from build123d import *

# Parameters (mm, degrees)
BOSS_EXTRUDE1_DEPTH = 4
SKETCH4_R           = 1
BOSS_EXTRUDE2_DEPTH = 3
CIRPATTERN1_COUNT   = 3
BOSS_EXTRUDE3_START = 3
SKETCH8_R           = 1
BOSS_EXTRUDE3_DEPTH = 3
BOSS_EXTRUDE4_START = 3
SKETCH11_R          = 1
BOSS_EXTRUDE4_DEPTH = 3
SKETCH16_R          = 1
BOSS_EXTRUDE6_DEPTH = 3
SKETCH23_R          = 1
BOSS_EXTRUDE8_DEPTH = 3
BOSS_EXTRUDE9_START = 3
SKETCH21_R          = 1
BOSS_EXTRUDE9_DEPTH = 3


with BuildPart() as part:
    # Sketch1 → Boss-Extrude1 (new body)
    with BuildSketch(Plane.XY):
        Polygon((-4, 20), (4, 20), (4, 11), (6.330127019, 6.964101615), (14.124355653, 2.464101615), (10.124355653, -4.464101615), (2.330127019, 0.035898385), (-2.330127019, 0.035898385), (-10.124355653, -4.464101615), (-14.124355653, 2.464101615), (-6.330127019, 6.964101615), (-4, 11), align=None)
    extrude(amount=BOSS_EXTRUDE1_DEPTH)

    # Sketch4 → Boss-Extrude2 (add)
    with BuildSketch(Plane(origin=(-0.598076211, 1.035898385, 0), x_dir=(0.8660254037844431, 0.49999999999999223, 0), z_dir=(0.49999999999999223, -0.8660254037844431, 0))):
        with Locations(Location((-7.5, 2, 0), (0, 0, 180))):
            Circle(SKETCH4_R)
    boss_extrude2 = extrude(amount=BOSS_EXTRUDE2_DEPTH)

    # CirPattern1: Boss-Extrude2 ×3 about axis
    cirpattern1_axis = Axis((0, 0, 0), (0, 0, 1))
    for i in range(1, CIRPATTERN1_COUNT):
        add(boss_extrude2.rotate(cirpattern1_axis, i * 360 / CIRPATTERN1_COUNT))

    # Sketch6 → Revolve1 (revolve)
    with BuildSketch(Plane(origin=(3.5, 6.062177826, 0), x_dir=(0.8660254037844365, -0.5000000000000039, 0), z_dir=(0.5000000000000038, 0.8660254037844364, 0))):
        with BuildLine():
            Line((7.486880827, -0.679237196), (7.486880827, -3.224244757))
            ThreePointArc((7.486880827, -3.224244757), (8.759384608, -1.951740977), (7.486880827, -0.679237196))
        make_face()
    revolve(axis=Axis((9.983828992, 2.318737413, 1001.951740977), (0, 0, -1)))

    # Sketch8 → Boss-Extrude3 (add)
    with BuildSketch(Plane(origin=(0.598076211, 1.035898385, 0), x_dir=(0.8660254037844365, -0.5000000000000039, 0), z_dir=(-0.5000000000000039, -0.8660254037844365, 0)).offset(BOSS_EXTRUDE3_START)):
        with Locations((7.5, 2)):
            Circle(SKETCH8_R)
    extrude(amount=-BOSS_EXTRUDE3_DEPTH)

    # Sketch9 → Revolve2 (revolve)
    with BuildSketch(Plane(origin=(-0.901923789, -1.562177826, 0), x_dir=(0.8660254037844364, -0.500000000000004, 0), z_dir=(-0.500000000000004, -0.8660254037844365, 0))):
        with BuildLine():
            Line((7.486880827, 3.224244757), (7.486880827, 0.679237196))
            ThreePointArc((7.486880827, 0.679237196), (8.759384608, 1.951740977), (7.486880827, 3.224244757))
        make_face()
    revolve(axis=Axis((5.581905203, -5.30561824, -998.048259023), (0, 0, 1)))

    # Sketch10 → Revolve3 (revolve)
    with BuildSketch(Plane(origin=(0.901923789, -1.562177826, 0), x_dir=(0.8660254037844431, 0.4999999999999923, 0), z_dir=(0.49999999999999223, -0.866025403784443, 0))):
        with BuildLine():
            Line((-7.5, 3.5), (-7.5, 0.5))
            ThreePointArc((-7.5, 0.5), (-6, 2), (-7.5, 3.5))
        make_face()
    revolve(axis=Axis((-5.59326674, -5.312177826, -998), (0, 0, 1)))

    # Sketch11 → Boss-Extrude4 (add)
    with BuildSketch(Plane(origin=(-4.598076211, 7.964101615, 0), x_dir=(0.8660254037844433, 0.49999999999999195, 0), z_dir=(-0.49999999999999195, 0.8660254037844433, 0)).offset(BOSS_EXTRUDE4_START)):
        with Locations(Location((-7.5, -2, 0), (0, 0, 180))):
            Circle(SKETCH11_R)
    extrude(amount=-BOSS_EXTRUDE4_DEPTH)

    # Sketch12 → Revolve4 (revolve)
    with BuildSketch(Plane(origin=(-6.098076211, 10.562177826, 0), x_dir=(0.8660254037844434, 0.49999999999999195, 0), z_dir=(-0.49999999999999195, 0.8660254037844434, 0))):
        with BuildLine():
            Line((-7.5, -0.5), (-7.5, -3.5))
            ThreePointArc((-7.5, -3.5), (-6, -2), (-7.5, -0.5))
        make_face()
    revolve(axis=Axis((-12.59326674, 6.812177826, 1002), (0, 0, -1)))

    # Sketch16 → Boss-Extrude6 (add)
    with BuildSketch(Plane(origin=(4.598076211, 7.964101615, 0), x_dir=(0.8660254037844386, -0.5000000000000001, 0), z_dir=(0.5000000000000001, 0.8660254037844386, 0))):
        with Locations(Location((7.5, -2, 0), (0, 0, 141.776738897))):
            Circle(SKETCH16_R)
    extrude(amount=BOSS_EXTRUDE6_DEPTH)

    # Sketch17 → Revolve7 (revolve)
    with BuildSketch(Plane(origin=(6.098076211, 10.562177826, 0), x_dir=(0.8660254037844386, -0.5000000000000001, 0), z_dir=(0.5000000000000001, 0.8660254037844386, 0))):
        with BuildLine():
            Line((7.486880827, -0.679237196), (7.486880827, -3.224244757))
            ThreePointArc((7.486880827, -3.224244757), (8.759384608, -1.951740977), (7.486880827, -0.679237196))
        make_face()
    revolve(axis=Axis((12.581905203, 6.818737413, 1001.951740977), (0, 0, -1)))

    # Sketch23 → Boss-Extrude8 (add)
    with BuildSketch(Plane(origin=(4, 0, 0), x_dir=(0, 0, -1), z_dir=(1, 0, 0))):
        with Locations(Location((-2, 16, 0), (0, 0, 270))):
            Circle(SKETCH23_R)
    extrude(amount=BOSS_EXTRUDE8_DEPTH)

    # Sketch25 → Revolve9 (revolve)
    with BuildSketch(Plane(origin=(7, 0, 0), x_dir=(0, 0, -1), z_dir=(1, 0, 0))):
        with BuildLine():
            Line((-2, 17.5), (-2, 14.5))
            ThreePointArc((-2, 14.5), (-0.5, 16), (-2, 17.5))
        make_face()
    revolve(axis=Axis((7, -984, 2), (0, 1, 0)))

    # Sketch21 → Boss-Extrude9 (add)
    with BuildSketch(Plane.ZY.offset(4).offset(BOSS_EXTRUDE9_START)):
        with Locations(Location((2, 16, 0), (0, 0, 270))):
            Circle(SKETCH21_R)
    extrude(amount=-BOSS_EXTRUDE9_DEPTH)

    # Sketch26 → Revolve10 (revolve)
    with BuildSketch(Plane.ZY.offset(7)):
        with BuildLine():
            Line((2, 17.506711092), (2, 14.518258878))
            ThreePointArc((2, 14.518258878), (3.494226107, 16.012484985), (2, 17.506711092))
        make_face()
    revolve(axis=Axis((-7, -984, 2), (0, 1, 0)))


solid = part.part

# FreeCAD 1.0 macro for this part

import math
import FreeCAD as App
import Part
import Sketcher

V = App.Vector
Q = App.Units.Quantity


def add_polygon(sketch, points):
    """Adds a closed chain of lines whose ends are joined by coincident constraints."""
    first, n = sketch.GeometryCount, len(points)
    for a, b in zip(points, points[1:] + points[:1]):
        sketch.addGeometry(Part.LineSegment(App.Vector(*a, 0), App.Vector(*b, 0)), False)
    for i in range(n):
        sketch.addConstraint(Sketcher.Constraint("Coincident", first + i, 2, first + (i + 1) % n, 1))

doc = App.newDocument("Part")
params = doc.addObject("Spreadsheet::Sheet", "Params")
for row, (alias, value) in enumerate([
    ("sketch1_width", "8 mm"),
    ("sketch1_height", "9 mm"),
    ("sketch1_length", "9 mm"),
    ("sketch1_length2", "8 mm"),
    ("pad1_length", "4 mm"),
    ("sketch2_diameter", "2 mm"),
    ("pad2_length", "3 mm"),
    ("revolution_angle", "360 deg"),
    ("sketch4_diameter", "2 mm"),
    ("pad3_length", "3 mm"),
    ("revolution2_angle", "360 deg"),
    ("sketch6_radius", "1.5 mm"),
    ("revolution3_angle", "360 deg"),
    ("sketch7_diameter", "2 mm"),
    ("pad4_length", "3 mm"),
    ("sketch8_radius", "1.5 mm"),
    ("revolution4_angle", "360 deg"),
    ("sketch9_diameter", "2 mm"),
    ("pad5_length", "3 mm"),
    ("revolution5_angle", "360 deg"),
    ("sketch11_diameter", "2 mm"),
    ("pad6_length", "3 mm"),
    ("sketch12_radius", "1.5 mm"),
    ("revolution6_angle", "360 deg"),
    ("sketch13_diameter", "2 mm"),
    ("pad7_length", "3 mm"),
    ("revolution7_angle", "360 deg"),
], start=1):
    params.set(f"A{row}", alias)
    params.set(f"B{row}", "=" + value)
    params.setAlias(f"B{row}", alias)

body = doc.addObject("PartDesign::Body", "Body")

sketch1 = body.newObject("Sketcher::SketchObject", "Sketch")
sketch1.AttachmentSupport = (doc.getObject("XY_Plane"), [""])
sketch1.MapMode = "FlatFace"
add_polygon(sketch1, [(4, 20), (-4, 20), (-4, 11), (-6.330127, 6.964102), (-14.124356, 2.464102), (-10.124356, -4.464102), (-2.330127, 0.035898), (2.330127, 0.035898), (10.124356, -4.464102), (14.124356, 2.464102), (6.330127, 6.964102), (4, 11)])
sketch1.addConstraint(Sketcher.Constraint("Horizontal", 0))
sketch1.addConstraint(Sketcher.Constraint("Vertical", 1))
sketch1.addConstraint(Sketcher.Constraint("Horizontal", 6))
sketch1.addConstraint(Sketcher.Constraint("Vertical", 11))
sketch1.addConstraint(Sketcher.Constraint("Symmetric", 4, 2, 7, 2, -2))
sketch1.addConstraint(Sketcher.Constraint("Symmetric", 3, 2, 8, 2, -2))
sketch1.addConstraint(Sketcher.Constraint("Symmetric", 2, 2, 9, 2, -2))
sketch1.addConstraint(Sketcher.Constraint("Symmetric", 1, 2, 10, 2, -2))
sketch1.addConstraint(Sketcher.Constraint("Perpendicular", 3, 4))
sketch1.addConstraint(Sketcher.Constraint("Perpendicular", 4, 5))
sketch1.addConstraint(Sketcher.Constraint("Perpendicular", 2, 7))
sketch1.addConstraint(Sketcher.Constraint("Perpendicular", 7, 8))
sketch1.addConstraint(Sketcher.Constraint("Equal", 3, 5))
sketch1.addConstraint(Sketcher.Constraint("DistanceX", 0, 2, 0, 1, 8.0))
sketch1.addConstraint(Sketcher.Constraint("DistanceY", 1, 2, 1, 1, 9.0))
sketch1.addConstraint(Sketcher.Constraint("Angle", 2, Q("-120 deg")))
sketch1.addConstraint(Sketcher.Constraint("Distance", 3, 9.0))
sketch1.addConstraint(Sketcher.Constraint("Distance", 4, 8.0))
sketch1.addConstraint(Sketcher.Constraint("DistanceY", -1, 1, 0, 2, 20.0))
sketch1.addConstraint(Sketcher.Constraint("DistanceY", -1, 1, 2, 2, 6.964102))
sketch1.setExpression("Constraints[25]", "Params.sketch1_width")
sketch1.setExpression("Constraints[26]", "Params.sketch1_height")
sketch1.setExpression("Constraints[28]", "Params.sketch1_length")
sketch1.setExpression("Constraints[29]", "Params.sketch1_length2")
pad1 = body.newObject("PartDesign::Pad", "Pad")
pad1.Profile = sketch1
pad1.setExpression("Length", "Params.pad1_length")

sketch2 = body.newObject("Sketcher::SketchObject", "Sketch001")
sketch2.Placement = App.Placement(V(-0.598076, 1.035898, 0), App.Rotation(V(0.866025404, 0.5, 0), V(0, 0, 1), V(0.5, -0.866025404, 0), "ZXY"))
sketch2.addGeometry(Part.Circle(V(-7.5, 2, 0), V(0, 0, 1), 1), False)
sketch2.addConstraint(Sketcher.Constraint("Diameter", 0, 2.0))
sketch2.addConstraint(Sketcher.Constraint("DistanceY", -1, 1, 0, 3, 2.0))
sketch2.addConstraint(Sketcher.Constraint("DistanceX", 0, 3, -1, 1, 7.5))
sketch2.setExpression("Constraints[0]", "Params.sketch2_diameter")
pad2 = body.newObject("PartDesign::Pad", "Pad001")
pad2.Profile = sketch2
pad2.setExpression("Length", "Params.pad2_length")
doc.recompute()

polarpattern = body.newObject("PartDesign::PolarPattern", "PolarPattern")
polarpattern.Originals = [pad2]
polarpattern.Axis = (doc.getObject("Z_Axis"), [""])
polarpattern.Angle = 360
polarpattern.Occurrences = 3
body.Tip = polarpattern

sketch3 = body.newObject("Sketcher::SketchObject", "Sketch002")
sketch3.Placement = App.Placement(V(3.5, 6.062178, 0), App.Rotation(V(0.866025404, -0.5, 0), V(0, 0, -1), V(0.5, 0.866025404, 0), "ZXY"))
sketch3.addGeometry(Part.LineSegment(V(7.486881, -0.679237, 0), V(7.486881, -3.224245, 0)), False)
sketch3.addGeometry(Part.ArcOfCircle(Part.Circle(V(7.486881, -1.951741, 0), V(0, 0, 1), 1.272504), math.radians(-90), math.radians(90)), False)
sketch3.addGeometry(Part.LineSegment(V(7.486881, -3.224244, 0), V(7.486881, -0.679236, 0)), True)
sketch3.addConstraint(Sketcher.Constraint("Coincident", 0, 1, 1, 2))
sketch3.addConstraint(Sketcher.Constraint("Coincident", 1, 1, 0, 2))
sketch3.addConstraint(Sketcher.Constraint("Vertical", 0))
sketch3.addConstraint(Sketcher.Constraint("Vertical", 2))
sketch3.addConstraint(Sketcher.Constraint("Coincident", 2, 1, 1, 1))
sketch3.addConstraint(Sketcher.Constraint("Vertical", 1, 3, 0, 1))
sketch3.addConstraint(Sketcher.Constraint("Equal", 0, 2))
sketch3.addConstraint(Sketcher.Constraint("Radius", 1, 1.272504))
sketch3.addConstraint(Sketcher.Constraint("DistanceX", -1, 1, 1, 3, 7.486881))
sketch3.addConstraint(Sketcher.Constraint("DistanceY", 1, 3, -1, 1, 1.951741))
revolution = body.newObject("PartDesign::Revolution", "Revolution")
revolution.Profile = sketch3
revolution.ReferenceAxis = (sketch3, ["Axis0"])
revolution.setExpression("Angle", "Params.revolution_angle")

sketch4 = body.newObject("Sketcher::SketchObject", "Sketch003")
sketch4.Placement = App.Placement(V(-0.901924, -1.562178, 0), App.Rotation(V(0.866025404, -0.5, 0), V(0, 0, 1), V(-0.5, -0.866025404, 0), "ZXY"))
sketch4.addGeometry(Part.Circle(V(7.5, 2, 0), V(0, 0, 1), 1), False)
sketch4.addConstraint(Sketcher.Constraint("Diameter", 0, 2.0))
sketch4.addConstraint(Sketcher.Constraint("DistanceY", -1, 1, 0, 3, 2.0))
sketch4.addConstraint(Sketcher.Constraint("DistanceX", -1, 1, 0, 3, 7.5))
sketch4.setExpression("Constraints[0]", "Params.sketch4_diameter")
pad3 = body.newObject("PartDesign::Pad", "Pad002")
pad3.Profile = sketch4
pad3.setExpression("Length", "Params.pad3_length")
pad3.Reversed = True

sketch5 = body.newObject("Sketcher::SketchObject", "Sketch004")
sketch5.Placement = App.Placement(V(-0.901924, -1.562178, 0), App.Rotation(V(0.866025404, -0.5, 0), V(0, 0, 1), V(-0.5, -0.866025404, 0), "ZXY"))
sketch5.addGeometry(Part.LineSegment(V(7.486881, 3.224245, 0), V(7.486881, 0.679237, 0)), False)
sketch5.addGeometry(Part.ArcOfCircle(Part.Circle(V(7.486881, 1.951741, 0), V(0, 0, 1), 1.272504), math.radians(-90), math.radians(90)), False)
sketch5.addGeometry(Part.LineSegment(V(7.486881, 0.679238, 0), V(7.486881, 3.224246, 0)), True)
sketch5.addConstraint(Sketcher.Constraint("Coincident", 0, 1, 1, 2))
sketch5.addConstraint(Sketcher.Constraint("Coincident", 1, 1, 0, 2))
sketch5.addConstraint(Sketcher.Constraint("Vertical", 0))
sketch5.addConstraint(Sketcher.Constraint("Vertical", 2))
sketch5.addConstraint(Sketcher.Constraint("Coincident", 2, 1, 1, 1))
sketch5.addConstraint(Sketcher.Constraint("Vertical", 1, 3, 0, 1))
sketch5.addConstraint(Sketcher.Constraint("Equal", 0, 2))
sketch5.addConstraint(Sketcher.Constraint("Radius", 1, 1.272504))
sketch5.addConstraint(Sketcher.Constraint("DistanceX", -1, 1, 1, 3, 7.486881))
sketch5.addConstraint(Sketcher.Constraint("DistanceY", -1, 1, 1, 3, 1.951741))
revolution2 = body.newObject("PartDesign::Revolution", "Revolution001")
revolution2.Profile = sketch5
revolution2.ReferenceAxis = (sketch5, ["Axis0"])
revolution2.setExpression("Angle", "Params.revolution2_angle")

sketch6 = body.newObject("Sketcher::SketchObject", "Sketch005")
sketch6.Placement = App.Placement(V(0.901924, -1.562178, 0), App.Rotation(V(0.866025404, 0.5, 0), V(0, 0, 1), V(0.5, -0.866025404, 0), "ZXY"))
sketch6.addGeometry(Part.LineSegment(V(-7.5, 3.5, 0), V(-7.5, 0.5, 0)), False)
sketch6.addGeometry(Part.ArcOfCircle(Part.Circle(V(-7.5, 2, 0), V(0, 0, 1), 1.5), math.radians(-90), math.radians(90)), False)
sketch6.addGeometry(Part.LineSegment(V(-7.5, 0.500001, 0), V(-7.5, 3.500001, 0)), True)
sketch6.addConstraint(Sketcher.Constraint("Coincident", 0, 1, 1, 2))
sketch6.addConstraint(Sketcher.Constraint("Coincident", 1, 1, 0, 2))
sketch6.addConstraint(Sketcher.Constraint("Vertical", 0))
sketch6.addConstraint(Sketcher.Constraint("Vertical", 2))
sketch6.addConstraint(Sketcher.Constraint("Coincident", 2, 1, 1, 1))
sketch6.addConstraint(Sketcher.Constraint("Vertical", 1, 3, 0, 1))
sketch6.addConstraint(Sketcher.Constraint("Equal", 0, 2))
sketch6.addConstraint(Sketcher.Constraint("Radius", 1, 1.5))
sketch6.addConstraint(Sketcher.Constraint("DistanceY", -1, 1, 1, 3, 2.0))
sketch6.addConstraint(Sketcher.Constraint("DistanceX", 1, 3, -1, 1, 7.5))
sketch6.setExpression("Constraints[7]", "Params.sketch6_radius")
revolution3 = body.newObject("PartDesign::Revolution", "Revolution002")
revolution3.Profile = sketch6
revolution3.ReferenceAxis = (sketch6, ["Axis0"])
revolution3.setExpression("Angle", "Params.revolution3_angle")

sketch7 = body.newObject("Sketcher::SketchObject", "Sketch006")
sketch7.Placement = App.Placement(V(-6.098076, 10.562178, 0), App.Rotation(V(0.866025404, 0.5, 0), V(0, 0, -1), V(-0.5, 0.866025404, 0), "ZXY"))
sketch7.addGeometry(Part.Circle(V(-7.5, -2, 0), V(0, 0, 1), 1), False)
sketch7.addConstraint(Sketcher.Constraint("Diameter", 0, 2.0))
sketch7.addConstraint(Sketcher.Constraint("DistanceY", 0, 3, -1, 1, 2.0))
sketch7.addConstraint(Sketcher.Constraint("DistanceX", 0, 3, -1, 1, 7.5))
sketch7.setExpression("Constraints[0]", "Params.sketch7_diameter")
pad4 = body.newObject("PartDesign::Pad", "Pad003")
pad4.Profile = sketch7
pad4.setExpression("Length", "Params.pad4_length")
pad4.Reversed = True

sketch8 = body.newObject("Sketcher::SketchObject", "Sketch007")
sketch8.Placement = App.Placement(V(-6.098076, 10.562178, 0), App.Rotation(V(0.866025404, 0.5, 0), V(0, 0, -1), V(-0.5, 0.866025404, 0), "ZXY"))
sketch8.addGeometry(Part.LineSegment(V(-7.5, -0.5, 0), V(-7.5, -3.5, 0)), False)
sketch8.addGeometry(Part.ArcOfCircle(Part.Circle(V(-7.5, -2, 0), V(0, 0, 1), 1.5), math.radians(-90), math.radians(90)), False)
sketch8.addGeometry(Part.LineSegment(V(-7.5, -3.499999, 0), V(-7.5, -0.499999, 0)), True)
sketch8.addConstraint(Sketcher.Constraint("Coincident", 0, 1, 1, 2))
sketch8.addConstraint(Sketcher.Constraint("Coincident", 1, 1, 0, 2))
sketch8.addConstraint(Sketcher.Constraint("Vertical", 0))
sketch8.addConstraint(Sketcher.Constraint("Vertical", 2))
sketch8.addConstraint(Sketcher.Constraint("Coincident", 2, 1, 1, 1))
sketch8.addConstraint(Sketcher.Constraint("Vertical", 1, 3, 0, 1))
sketch8.addConstraint(Sketcher.Constraint("Equal", 0, 2))
sketch8.addConstraint(Sketcher.Constraint("Radius", 1, 1.5))
sketch8.addConstraint(Sketcher.Constraint("DistanceY", 1, 3, -1, 1, 2.0))
sketch8.addConstraint(Sketcher.Constraint("DistanceX", 1, 3, -1, 1, 7.5))
sketch8.setExpression("Constraints[7]", "Params.sketch8_radius")
revolution4 = body.newObject("PartDesign::Revolution", "Revolution003")
revolution4.Profile = sketch8
revolution4.ReferenceAxis = (sketch8, ["Axis0"])
revolution4.setExpression("Angle", "Params.revolution4_angle")

sketch9 = body.newObject("Sketcher::SketchObject", "Sketch008")
sketch9.Placement = App.Placement(V(4.598076, 7.964102, 0), App.Rotation(V(0.866025404, -0.5, 0), V(0, 0, -1), V(0.5, 0.866025404, 0), "ZXY"))
sketch9.addGeometry(Part.Circle(V(7.5, -2, 0), V(0, 0, 1), 1), False)
sketch9.addConstraint(Sketcher.Constraint("Diameter", 0, 2.0))
sketch9.addConstraint(Sketcher.Constraint("DistanceY", 0, 3, -1, 1, 2.0))
sketch9.addConstraint(Sketcher.Constraint("DistanceX", -1, 1, 0, 3, 7.5))
sketch9.setExpression("Constraints[0]", "Params.sketch9_diameter")
pad5 = body.newObject("PartDesign::Pad", "Pad004")
pad5.Profile = sketch9
pad5.setExpression("Length", "Params.pad5_length")

sketch10 = body.newObject("Sketcher::SketchObject", "Sketch009")
sketch10.Placement = App.Placement(V(6.098076, 10.562178, 0), App.Rotation(V(0.866025404, -0.5, 0), V(0, 0, -1), V(0.5, 0.866025404, 0), "ZXY"))
sketch10.addGeometry(Part.LineSegment(V(7.486881, -0.679237, 0), V(7.486881, -3.224245, 0)), False)
sketch10.addGeometry(Part.ArcOfCircle(Part.Circle(V(7.486881, -1.951741, 0), V(0, 0, 1), 1.272504), math.radians(-90), math.radians(90)), False)
sketch10.addGeometry(Part.LineSegment(V(7.486881, -3.224244, 0), V(7.486881, -0.679236, 0)), True)
sketch10.addConstraint(Sketcher.Constraint("Coincident", 0, 1, 1, 2))
sketch10.addConstraint(Sketcher.Constraint("Coincident", 1, 1, 0, 2))
sketch10.addConstraint(Sketcher.Constraint("Vertical", 0))
sketch10.addConstraint(Sketcher.Constraint("Vertical", 2))
sketch10.addConstraint(Sketcher.Constraint("Coincident", 2, 1, 1, 1))
sketch10.addConstraint(Sketcher.Constraint("Vertical", 1, 3, 0, 1))
sketch10.addConstraint(Sketcher.Constraint("Equal", 0, 2))
sketch10.addConstraint(Sketcher.Constraint("Radius", 1, 1.272504))
sketch10.addConstraint(Sketcher.Constraint("DistanceX", -1, 1, 1, 3, 7.486881))
sketch10.addConstraint(Sketcher.Constraint("DistanceY", 1, 3, -1, 1, 1.951741))
revolution5 = body.newObject("PartDesign::Revolution", "Revolution004")
revolution5.Profile = sketch10
revolution5.ReferenceAxis = (sketch10, ["Axis0"])
revolution5.setExpression("Angle", "Params.revolution5_angle")

sketch11 = body.newObject("Sketcher::SketchObject", "Sketch010")
sketch11.AttachmentSupport = (doc.getObject("YZ_Plane"), [""])
sketch11.MapMode = "FlatFace"
sketch11.AttachmentOffset = App.Placement(V(0, 0, 4), App.Rotation())
sketch11.addGeometry(Part.Circle(V(16, 2, 0), V(0, 0, 1), 1), False)
sketch11.addConstraint(Sketcher.Constraint("Diameter", 0, 2.0))
sketch11.addConstraint(Sketcher.Constraint("DistanceX", -1, 1, 0, 3, 16.0))
sketch11.addConstraint(Sketcher.Constraint("DistanceY", -1, 1, 0, 3, 2.0))
sketch11.setExpression("Constraints[0]", "Params.sketch11_diameter")
pad6 = body.newObject("PartDesign::Pad", "Pad005")
pad6.Profile = sketch11
pad6.setExpression("Length", "Params.pad6_length")

sketch12 = body.newObject("Sketcher::SketchObject", "Sketch011")
sketch12.AttachmentSupport = (doc.getObject("YZ_Plane"), [""])
sketch12.MapMode = "FlatFace"
sketch12.AttachmentOffset = App.Placement(V(0, 0, 7), App.Rotation())
sketch12.addGeometry(Part.LineSegment(V(17.5, 2, 0), V(14.5, 2, 0)), False)
sketch12.addGeometry(Part.ArcOfCircle(Part.Circle(V(16, 2, 0), V(0, 0, 1), 1.5), math.radians(180), math.radians(360)), False)
sketch12.addGeometry(Part.LineSegment(V(14.5, 2, 0), V(17.5, 2, 0)), True)
sketch12.addConstraint(Sketcher.Constraint("Coincident", 0, 1, 1, 2))
sketch12.addConstraint(Sketcher.Constraint("Coincident", 1, 1, 0, 2))
sketch12.addConstraint(Sketcher.Constraint("Horizontal", 0))
sketch12.addConstraint(Sketcher.Constraint("Horizontal", 2))
sketch12.addConstraint(Sketcher.Constraint("Coincident", 2, 1, 1, 1))
sketch12.addConstraint(Sketcher.Constraint("Horizontal", 1, 3, 0, 1))
sketch12.addConstraint(Sketcher.Constraint("Equal", 0, 2))
sketch12.addConstraint(Sketcher.Constraint("Radius", 1, 1.5))
sketch12.addConstraint(Sketcher.Constraint("DistanceX", -1, 1, 1, 3, 16.0))
sketch12.addConstraint(Sketcher.Constraint("DistanceY", -1, 1, 1, 3, 2.0))
sketch12.setExpression("Constraints[7]", "Params.sketch12_radius")
revolution6 = body.newObject("PartDesign::Revolution", "Revolution005")
revolution6.Profile = sketch12
revolution6.ReferenceAxis = (sketch12, ["Axis0"])
revolution6.setExpression("Angle", "Params.revolution6_angle")

sketch13 = body.newObject("Sketcher::SketchObject", "Sketch012")
sketch13.AttachmentSupport = (doc.getObject("YZ_Plane"), [""])
sketch13.MapMode = "FlatFace"
sketch13.AttachmentOffset = App.Placement(V(0, 0, -7), App.Rotation())
sketch13.addGeometry(Part.Circle(V(16, 2, 0), V(0, 0, 1), 1), False)
sketch13.addConstraint(Sketcher.Constraint("Diameter", 0, 2.0))
sketch13.addConstraint(Sketcher.Constraint("DistanceX", -1, 1, 0, 3, 16.0))
sketch13.addConstraint(Sketcher.Constraint("DistanceY", -1, 1, 0, 3, 2.0))
sketch13.setExpression("Constraints[0]", "Params.sketch13_diameter")
pad7 = body.newObject("PartDesign::Pad", "Pad006")
pad7.Profile = sketch13
pad7.setExpression("Length", "Params.pad7_length")

sketch14 = body.newObject("Sketcher::SketchObject", "Sketch013")
sketch14.AttachmentSupport = (doc.getObject("YZ_Plane"), [""])
sketch14.MapMode = "FlatFace"
sketch14.AttachmentOffset = App.Placement(V(0, 0, -7), App.Rotation())
sketch14.addGeometry(Part.LineSegment(V(17.506711, 2, 0), V(14.518259, 2, 0)), False)
sketch14.addGeometry(Part.ArcOfCircle(Part.Circle(V(16.012485, 2, 0), V(0, 0, 1), 1.494226), math.radians(0), math.radians(180)), False)
sketch14.addGeometry(Part.LineSegment(V(14.518259, 2, 0), V(17.506711, 2, 0)), True)
sketch14.addConstraint(Sketcher.Constraint("Coincident", 0, 1, 1, 1))
sketch14.addConstraint(Sketcher.Constraint("Coincident", 1, 2, 0, 2))
sketch14.addConstraint(Sketcher.Constraint("Horizontal", 0))
sketch14.addConstraint(Sketcher.Constraint("Horizontal", 2))
sketch14.addConstraint(Sketcher.Constraint("Coincident", 2, 1, 1, 2))
sketch14.addConstraint(Sketcher.Constraint("Horizontal", 1, 3, 0, 1))
sketch14.addConstraint(Sketcher.Constraint("Equal", 0, 2))
sketch14.addConstraint(Sketcher.Constraint("DistanceY", -1, 1, 1, 3, 2.0))
sketch14.addConstraint(Sketcher.Constraint("Radius", 1, 1.494226))
sketch14.addConstraint(Sketcher.Constraint("DistanceX", -1, 1, 0, 1, 17.506711))
revolution7 = body.newObject("PartDesign::Revolution", "Revolution006")
revolution7.Profile = sketch14
revolution7.ReferenceAxis = (sketch14, ["Axis0"])
revolution7.setExpression("Angle", "Params.revolution7_angle")

doc.recompute()
